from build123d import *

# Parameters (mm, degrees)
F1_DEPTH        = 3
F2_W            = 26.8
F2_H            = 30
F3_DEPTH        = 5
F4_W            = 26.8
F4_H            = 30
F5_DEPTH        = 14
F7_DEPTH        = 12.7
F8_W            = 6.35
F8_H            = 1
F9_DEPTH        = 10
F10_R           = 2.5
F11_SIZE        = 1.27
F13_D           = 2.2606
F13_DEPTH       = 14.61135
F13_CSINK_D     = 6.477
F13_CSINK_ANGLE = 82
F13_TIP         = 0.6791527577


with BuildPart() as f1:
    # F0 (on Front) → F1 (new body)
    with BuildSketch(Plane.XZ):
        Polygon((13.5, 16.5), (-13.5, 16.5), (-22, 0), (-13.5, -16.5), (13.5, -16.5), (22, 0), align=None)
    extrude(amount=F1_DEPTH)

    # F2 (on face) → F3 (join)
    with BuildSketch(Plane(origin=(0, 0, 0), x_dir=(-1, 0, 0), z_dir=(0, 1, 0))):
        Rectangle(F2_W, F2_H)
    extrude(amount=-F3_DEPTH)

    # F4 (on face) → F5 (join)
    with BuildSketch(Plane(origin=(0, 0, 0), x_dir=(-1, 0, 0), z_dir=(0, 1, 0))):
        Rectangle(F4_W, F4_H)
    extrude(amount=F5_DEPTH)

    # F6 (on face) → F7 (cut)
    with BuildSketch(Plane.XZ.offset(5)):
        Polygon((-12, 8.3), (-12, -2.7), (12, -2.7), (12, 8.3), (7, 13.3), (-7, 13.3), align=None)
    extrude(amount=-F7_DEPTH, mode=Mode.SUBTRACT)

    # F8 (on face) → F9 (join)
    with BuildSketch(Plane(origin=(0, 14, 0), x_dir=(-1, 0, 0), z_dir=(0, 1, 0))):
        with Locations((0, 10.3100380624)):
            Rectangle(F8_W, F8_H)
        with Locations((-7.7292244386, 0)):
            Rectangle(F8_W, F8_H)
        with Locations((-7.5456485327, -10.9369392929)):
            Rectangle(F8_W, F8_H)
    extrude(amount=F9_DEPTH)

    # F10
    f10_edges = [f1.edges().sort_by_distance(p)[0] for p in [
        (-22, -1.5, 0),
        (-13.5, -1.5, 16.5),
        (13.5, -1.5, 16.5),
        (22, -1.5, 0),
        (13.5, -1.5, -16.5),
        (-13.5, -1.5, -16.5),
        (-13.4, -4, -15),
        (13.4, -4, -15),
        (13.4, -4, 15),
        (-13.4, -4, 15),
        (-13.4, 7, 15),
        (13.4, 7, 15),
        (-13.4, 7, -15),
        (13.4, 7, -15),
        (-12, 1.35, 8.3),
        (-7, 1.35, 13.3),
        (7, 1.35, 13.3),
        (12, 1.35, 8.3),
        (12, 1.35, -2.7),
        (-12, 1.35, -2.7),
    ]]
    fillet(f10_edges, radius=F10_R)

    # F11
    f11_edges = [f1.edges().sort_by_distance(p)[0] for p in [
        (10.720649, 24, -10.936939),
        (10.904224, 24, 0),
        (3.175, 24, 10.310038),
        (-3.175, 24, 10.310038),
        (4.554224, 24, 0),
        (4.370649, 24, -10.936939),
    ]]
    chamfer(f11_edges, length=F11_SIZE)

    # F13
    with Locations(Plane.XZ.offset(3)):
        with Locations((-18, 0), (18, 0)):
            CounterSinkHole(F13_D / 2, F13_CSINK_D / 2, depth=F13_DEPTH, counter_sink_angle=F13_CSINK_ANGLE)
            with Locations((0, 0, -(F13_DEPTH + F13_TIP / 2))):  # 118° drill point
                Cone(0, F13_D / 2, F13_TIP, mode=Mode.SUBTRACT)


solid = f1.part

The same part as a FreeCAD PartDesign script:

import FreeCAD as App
import Part
import Sketcher
from FreeCAD import Vector


def edges_at(feature, points):
    """Names of the edges that pass closest to the given points."""
    edges = feature.Shape.Edges
    near = lambda p: min(range(len(edges)), key=lambda i: edges[i].distToShape(Part.Vertex(*p))[0])
    return sorted({f"Edge{near(p) + 1}" for p in points})


def add_polygon(sketch, points):
    """Adds a closed chain of lines whose ends are joined by coincident constraints."""
    first, n = sketch.GeometryCount, len(points)
    for a, b in zip(points, points[1:] + points[:1]):
        sketch.addGeometry(Part.LineSegment(App.Vector(*a, 0), App.Vector(*b, 0)), False)
    for i in range(n):
        sketch.addConstraint(Sketcher.Constraint("Coincident", first + i, 2, first + (i + 1) % n, 1))

doc = App.newDocument("Part")
body = doc.addObject("PartDesign::Body", "Body")

sketch1 = body.newObject("Sketcher::SketchObject", "Sketch")
sketch1.AttachmentSupport = (doc.getObject("XZ_Plane"), [""])
sketch1.MapMode = "FlatFace"
add_polygon(sketch1, [(14, 16), (-14, 16), (-22, 0), (-14, -16), (14, -16), (22, 0)])
sketch1.addConstraint([
    Sketcher.Constraint("Horizontal", 0),
    Sketcher.Constraint("Horizontal", 3),
    Sketcher.Constraint("Symmetric", 0, 2, 3, 2, -1, 1),
    Sketcher.Constraint("Symmetric", 1, 2, 4, 2, -1, 1),
    Sketcher.Constraint("PointOnObject", 1, 2, -1),
    Sketcher.Constraint("Parallel", 2, 5),
    Sketcher.Constraint("Vertical", 0, 2, 2, 2),
    Sketcher.Constraint("DistanceX", 0, 2, 0, 1, 27.0),
    Sketcher.Constraint("DistanceX", 1, 2, -1, 1, 22.0),
    Sketcher.Constraint("DistanceY", 2, 2, 0, 2, 33.0),
])
pad1 = body.newObject("PartDesign::Pad", "Pad")
pad1.Profile = sketch1
pad1.Length = 3

sketch2 = body.newObject("Sketcher::SketchObject", "Sketch001")
sketch2.AttachmentSupport = (doc.getObject("XZ_Plane"), [""])
sketch2.MapMode = "FlatFace"
add_polygon(sketch2, [(13, 15), (13, -15), (-13, -15), (-13, 15)])
sketch2.addConstraint([
    Sketcher.Constraint("Vertical", 0),
    Sketcher.Constraint("Horizontal", 1),
    Sketcher.Constraint("Vertical", 2),
    Sketcher.Constraint("Horizontal", 3),
    Sketcher.Constraint("Symmetric", 0, 2, 2, 2, -1, 1),
    Sketcher.Constraint("DistanceY", 0, 2, 0, 1, 30.0),
    Sketcher.Constraint("DistanceX", 1, 2, 1, 1, 26.8),
])
pad2 = body.newObject("PartDesign::Pad", "Pad001")
pad2.Profile = sketch2
pad2.Length = 5

sketch3 = body.newObject("Sketcher::SketchObject", "Sketch002")
sketch3.AttachmentSupport = (doc.getObject("XZ_Plane"), [""])
sketch3.MapMode = "FlatFace"
add_polygon(sketch3, [(13, 15), (13, -15), (-13, -15), (-13, 15)])
sketch3.addConstraint([
    Sketcher.Constraint("Vertical", 0),
    Sketcher.Constraint("Horizontal", 1),
    Sketcher.Constraint("Vertical", 2),
    Sketcher.Constraint("Horizontal", 3),
    Sketcher.Constraint("Symmetric", 0, 2, 2, 2, -1, 1),
    Sketcher.Constraint("DistanceY", 0, 2, 0, 1, 30.0),
    Sketcher.Constraint("DistanceX", 1, 2, 1, 1, 26.8),
])
pad3 = body.newObject("PartDesign::Pad", "Pad002")
pad3.Profile = sketch3
pad3.Length = 14
pad3.Reversed = True

sketch4 = body.newObject("Sketcher::SketchObject", "Sketch003")
sketch4.AttachmentSupport = (doc.getObject("XZ_Plane"), [""])
sketch4.MapMode = "FlatFace"
sketch4.AttachmentOffset = App.Placement(Vector(0, 0, 5), App.Rotation())
add_polygon(sketch4, [(-12, 8), (-12, -3), (12, -3), (12, 8), (7, 13), (-7, 13)])
sketch4.addConstraint([
    Sketcher.Constraint("Vertical", 0),
    Sketcher.Constraint("Horizontal", 1),
    Sketcher.Constraint("Vertical", 2),
    Sketcher.Constraint("Horizontal", 4),
    Sketcher.Constraint("Symmetric", 2, 2, 5, 2, -2),
    Sketcher.Constraint("Perpendicular", 3, 5),
    Sketcher.Constraint("Equal", 3, 5),
    Sketcher.Constraint("DistanceX", 1, 1, 1, 2, 24.0),
    Sketcher.Constraint("DistanceX", 4, 2, 4, 1, 14.0),
    Sketcher.Constraint("DistanceY", 0, 2, 0, 1, 11.0),
    Sketcher.Constraint("DistanceY", 0, 2, -1, 1, 2.7),
])
pocket1 = body.newObject("PartDesign::Pocket", "Pocket")
pocket1.Profile = sketch4
pocket1.Length = 12.7

sketch5 = body.newObject("Sketcher::SketchObject", "Sketch004")
sketch5.AttachmentSupport = (doc.getObject("XZ_Plane"), [""])
sketch5.MapMode = "FlatFace"
sketch5.AttachmentOffset = App.Placement(Vector(0, 0, -14), App.Rotation())
add_polygon(sketch5, [(3.2, 10.8), (3.2, 9.8), (-3.2, 9.8), (-3.2, 10.8)])
add_polygon(sketch5, [(10.9, 0.5), (10.9, -0.5), (4.6, -0.5), (4.6, 0.5)])
add_polygon(sketch5, [(10.7, -10.4), (10.7, -11.4), (4.4, -11.4), (4.4, -10.4)])
sketch5.addConstraint([
    Sketcher.Constraint("Vertical", 0),
    Sketcher.Constraint("Horizontal", 1),
    Sketcher.Constraint("Vertical", 2),
    Sketcher.Constraint("Horizontal", 3),
    Sketcher.Constraint("Vertical", 4),
    Sketcher.Constraint("Horizontal", 5),
    Sketcher.Constraint("Vertical", 6),
    Sketcher.Constraint("Horizontal", 7),
    Sketcher.Constraint("Vertical", 8),
    Sketcher.Constraint("Horizontal", 9),
    Sketcher.Constraint("Vertical", 10),
    Sketcher.Constraint("Horizontal", 11),
    Sketcher.Constraint("Equal", 3, 5),
    Sketcher.Constraint("Equal", 7, 9),
    Sketcher.Constraint("Equal", 2, 4),
    Sketcher.Constraint("Equal", 6, 8),
    Sketcher.Constraint("DistanceY", 0, 2, 0, 1, 1.0),
    Sketcher.Constraint("DistanceX", 1, 2, 1, 1, 6.35),
    Sketcher.Constraint("DistanceY", 4, 2, -1, 1, 0.5),
    Sketcher.Constraint("DistanceX", -1, 1, 0, 2, 3.175),
    Sketcher.Constraint("DistanceY", -1, 1, 0, 2, 9.810038),
    Sketcher.Constraint("DistanceX", -1, 1, 8, 2, 10.720649),
    Sketcher.Constraint("DistanceY", 8, 2, -1, 1, 11.436939),
    Sketcher.Constraint("DistanceX", -1, 1, 4, 2, 10.904224),
])
pad4 = body.newObject("PartDesign::Pad", "Pad003")
pad4.Profile = sketch5
pad4.Length = 10
pad4.Reversed = True
doc.recompute()

fillet = body.newObject("PartDesign::Fillet", "Fillet")
fillet.Base = (pad4, edges_at(pad4, [
    (-22, -1.5, 0),
    (-13.5, -1.5, 16.5),
    (13.5, -1.5, 16.5),
    (22, -1.5, 0),
    (13.5, -1.5, -16.5),
    (-13.5, -1.5, -16.5),
    (-13.4, -4, -15),
    (13.4, -4, -15),
    (13.4, -4, 15),
    (-13.4, -4, 15),
    (-13.4, 7, 15),
    (13.4, 7, 15),
    (-13.4, 7, -15),
    (13.4, 7, -15),
    (-12, 1.35, 8.3),
    (-7, 1.35, 13.3),
    (7, 1.35, 13.3),
    (12, 1.35, 8.3),
    (12, 1.35, -2.7),
    (-12, 1.35, -2.7),
]))
fillet.Radius = 2.5
doc.recompute()

chamfer = body.newObject("PartDesign::Chamfer", "Chamfer")
chamfer.Base = (fillet, edges_at(fillet, [
    (10.721, 24, -10.937),
    (10.904, 24, 0),
    (3.175, 24, 10.31),
    (-3.175, 24, 10.31),
    (4.554, 24, 0),
    (4.371, 24, -10.937),
]))
chamfer.Size = 1.27

sketch6 = body.newObject("Sketcher::SketchObject", "Sketch005")
sketch6.AttachmentSupport = (doc.getObject("XZ_Plane"), [""])
sketch6.MapMode = "FlatFace"
sketch6.AttachmentOffset = App.Placement(Vector(0, 0, 3), App.Rotation())
sketch6.addGeometry([
    Part.Circle(Vector(-18, 0, 0), Vector(0, 0, 1), 1.1),
    Part.Circle(Vector(18, 0, 0), Vector(0, 0, 1), 1.1),
], False)
sketch6.addConstraint([
    Sketcher.Constraint("Equal", 0, 1),
    Sketcher.Constraint("Symmetric", 0, 3, 1, 3, -1, 1),
    Sketcher.Constraint("PointOnObject", 0, 3, -1),
    Sketcher.Constraint("DistanceX", 0, 3, -1, 1, 18.0),
    Sketcher.Constraint("Diameter", 0, 2.2606),
])
doc.recompute()
hole = body.newObject("PartDesign::Hole", "Hole")
hole.Profile = sketch6
hole.ThreadType = "None"
hole.Diameter = 2.2606
hole.DepthType = "Dimension"
hole.Depth = 14.61135
hole.DrillPoint = "Angled"
hole.DrillPointAngle = 118
hole.HoleCutType = "Countersink"
hole.HoleCutDiameter = 6.477
hole.HoleCutCountersinkAngle = 82

doc.recompute()
